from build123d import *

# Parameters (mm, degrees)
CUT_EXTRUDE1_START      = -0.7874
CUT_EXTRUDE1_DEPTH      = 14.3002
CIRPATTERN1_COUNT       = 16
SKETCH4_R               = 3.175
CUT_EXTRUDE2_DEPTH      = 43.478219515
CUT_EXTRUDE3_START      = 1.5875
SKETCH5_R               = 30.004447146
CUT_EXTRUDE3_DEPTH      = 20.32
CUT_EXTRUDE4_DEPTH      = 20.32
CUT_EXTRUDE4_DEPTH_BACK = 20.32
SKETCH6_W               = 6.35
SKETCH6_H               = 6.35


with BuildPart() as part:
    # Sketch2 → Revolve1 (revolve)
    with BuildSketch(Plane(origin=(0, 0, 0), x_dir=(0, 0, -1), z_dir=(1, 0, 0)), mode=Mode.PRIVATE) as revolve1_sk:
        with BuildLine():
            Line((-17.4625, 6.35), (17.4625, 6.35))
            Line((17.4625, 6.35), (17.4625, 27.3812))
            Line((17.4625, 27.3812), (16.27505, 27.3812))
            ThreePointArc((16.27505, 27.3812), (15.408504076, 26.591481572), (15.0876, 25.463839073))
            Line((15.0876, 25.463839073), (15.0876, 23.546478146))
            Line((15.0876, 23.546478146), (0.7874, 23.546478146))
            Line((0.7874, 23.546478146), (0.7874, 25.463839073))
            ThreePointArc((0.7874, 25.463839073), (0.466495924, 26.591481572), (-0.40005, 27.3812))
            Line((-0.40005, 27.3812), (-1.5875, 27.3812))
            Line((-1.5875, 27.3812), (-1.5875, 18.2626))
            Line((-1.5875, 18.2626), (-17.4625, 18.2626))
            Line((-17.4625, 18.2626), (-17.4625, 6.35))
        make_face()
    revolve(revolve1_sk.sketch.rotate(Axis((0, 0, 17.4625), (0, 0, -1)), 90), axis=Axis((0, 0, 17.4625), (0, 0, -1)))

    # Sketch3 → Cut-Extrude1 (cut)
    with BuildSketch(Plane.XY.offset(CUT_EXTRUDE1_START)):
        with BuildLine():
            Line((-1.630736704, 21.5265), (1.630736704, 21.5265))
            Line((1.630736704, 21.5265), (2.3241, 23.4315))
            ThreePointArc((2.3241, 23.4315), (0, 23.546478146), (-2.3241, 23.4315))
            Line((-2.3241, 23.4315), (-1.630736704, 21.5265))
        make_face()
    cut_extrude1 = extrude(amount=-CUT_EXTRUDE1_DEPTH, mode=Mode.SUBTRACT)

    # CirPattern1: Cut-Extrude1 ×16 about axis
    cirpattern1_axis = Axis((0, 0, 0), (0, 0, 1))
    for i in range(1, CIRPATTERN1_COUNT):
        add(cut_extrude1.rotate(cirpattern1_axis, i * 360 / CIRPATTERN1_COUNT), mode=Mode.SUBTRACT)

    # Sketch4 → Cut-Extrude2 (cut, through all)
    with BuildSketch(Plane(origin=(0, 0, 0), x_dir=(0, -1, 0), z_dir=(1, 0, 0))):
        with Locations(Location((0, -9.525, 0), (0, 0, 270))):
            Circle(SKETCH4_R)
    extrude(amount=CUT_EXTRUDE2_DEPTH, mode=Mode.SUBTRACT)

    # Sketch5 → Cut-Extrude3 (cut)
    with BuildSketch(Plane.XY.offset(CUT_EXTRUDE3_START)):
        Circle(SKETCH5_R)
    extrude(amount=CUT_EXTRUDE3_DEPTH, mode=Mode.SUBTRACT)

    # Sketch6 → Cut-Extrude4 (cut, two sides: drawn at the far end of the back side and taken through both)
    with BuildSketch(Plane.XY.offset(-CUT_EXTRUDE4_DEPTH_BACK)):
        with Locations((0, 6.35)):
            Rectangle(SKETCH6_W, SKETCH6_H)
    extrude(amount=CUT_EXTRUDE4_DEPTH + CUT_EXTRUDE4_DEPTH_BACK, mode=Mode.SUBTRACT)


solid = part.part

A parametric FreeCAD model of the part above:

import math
import FreeCAD as App
import Part
import Sketcher
from FreeCAD import Vector
Q = App.Units.Quantity

doc = App.newDocument("Part")
body = doc.addObject("PartDesign::Body", "Body")

# Sketch on YZ plane
sketch1 = body.newObject("Sketcher::SketchObject", "Sketch")
sketch1.AttachmentSupport = (doc.getObject("YZ_Plane"), [""])
sketch1.MapMode = "FlatFace"
sketch1.addGeometry([
    Part.LineSegment(Vector(6.3, 17.5, 0), Vector(6.3, -17.5, 0)),  # 0
    Part.LineSegment(Vector(6.3, -17.5, 0), Vector(27.4, -17.5, 0)),  # 1
    Part.LineSegment(Vector(27.4, -17.5, 0), Vector(27.4, -16.3, 0)),  # 2
    Part.ArcOfCircle(Part.Circle(Vector(25.5, -17.2, 0), Vector(0, 0, 1), 2.1), math.radians(26), math.radians(90)),  # 3
    Part.LineSegment(Vector(25.5, -15.1, 0), Vector(23.5, -15.1, 0)),  # 4
    Part.LineSegment(Vector(23.5, -15.1, 0), Vector(23.5, -0.8, 0)),  # 5
    Part.LineSegment(Vector(23.5, -0.8, 0), Vector(25.5, -0.8, 0)),  # 6
    Part.ArcOfCircle(Part.Circle(Vector(25.5, 1.4, 0), Vector(0, 0, 1), 2.1), math.radians(-90), math.radians(-26)),  # 7
    Part.LineSegment(Vector(27.4, 0.4, 0), Vector(27.4, 1.6, 0)),  # 8
    Part.LineSegment(Vector(27.4, 1.6, 0), Vector(18.3, 1.6, 0)),  # 9
    Part.LineSegment(Vector(18.3, 1.6, 0), Vector(18.3, 17.5, 0)),  # 10
    Part.LineSegment(Vector(18.3, 17.5, 0), Vector(6.3, 17.5, 0)),  # 11
], False)
sketch1.addConstraint([
    Sketcher.Constraint("Coincident", 0, 2, 1, 1),
    Sketcher.Constraint("Coincident", 1, 2, 2, 1),
    Sketcher.Constraint("Coincident", 2, 2, 3, 1),
    Sketcher.Constraint("Tangent", 3, 2, 4, 1),
    Sketcher.Constraint("Coincident", 4, 2, 5, 1),
    Sketcher.Constraint("Coincident", 5, 2, 6, 1),
    Sketcher.Constraint("Tangent", 6, 2, 7, 1),
    Sketcher.Constraint("Coincident", 7, 2, 8, 1),
    Sketcher.Constraint("Coincident", 8, 2, 9, 1),
    Sketcher.Constraint("Coincident", 9, 2, 10, 1),
    Sketcher.Constraint("Coincident", 10, 2, 11, 1),
    Sketcher.Constraint("Coincident", 11, 2, 0, 1),
    Sketcher.Constraint("Vertical", 0),
    Sketcher.Constraint("Horizontal", 1),
    Sketcher.Constraint("Vertical", 2),
    Sketcher.Constraint("Horizontal", 4),
    Sketcher.Constraint("Vertical", 5),
    Sketcher.Constraint("Horizontal", 6),
    Sketcher.Constraint("Vertical", 8),
    Sketcher.Constraint("Horizontal", 9),
    Sketcher.Constraint("Vertical", 10),
    Sketcher.Constraint("Horizontal", 11),
    Sketcher.Constraint("Equal", 3, 7),
    Sketcher.Constraint("Vertical", 3, 3, 7, 3),
    Sketcher.Constraint("Vertical", 2, 2, 7, 2),
    Sketcher.Constraint("Equal", 2, 8),
    Sketcher.Constraint("DistanceX", 1, 1, 1, 2, Q("0.828 in")),
    Sketcher.Constraint("DistanceX", 9, 2, 9, 1, Q("0.359 in")),
    Sketcher.Constraint("DistanceY", 0, 2, 0, 1, Q("1.375 in")),
    Sketcher.Constraint("DistanceY", 5, 1, 5, 2, Q("0.563 in")),
    Sketcher.Constraint("DistanceY", 10, 1, 10, 2, Q("0.625 in")),
    Sketcher.Constraint("DistanceX", -1, 1, 0, 2, Q("0.25 in")),
    Sketcher.Constraint("DistanceY", 0, 2, -1, 1, Q("0.6875 in")),
    Sketcher.Constraint("Radius", 3, Q("2.141695 mm")),
    Sketcher.Constraint("DistanceX", 4, 2, 4, 1, Q("1.917361 mm")),
    Sketcher.Constraint("DistanceY", 2, 1, 2, 2, Q("1.18745 mm")),
])
revolution = body.newObject("PartDesign::Revolution", "Revolution")
revolution.Profile = sketch1
revolution.ReferenceAxis = (sketch1, ["V_Axis"])
revolution.Angle = 360

# Sketch on XY plane
sketch2 = body.newObject("Sketcher::SketchObject", "Sketch001")
sketch2.AttachmentSupport = (doc.getObject("XY_Plane"), [""])
sketch2.MapMode = "FlatFace"
sketch2.AttachmentOffset = App.Placement(Vector(0, 0, -0.031 * 25.4), App.Rotation())
sketch2.addGeometry([
    Part.LineSegment(Vector(-1.6, 21.5, 0), Vector(1.6, 21.5, 0)),
    Part.LineSegment(Vector(1.6, 21.5, 0), Vector(2.3, 23.4, 0)),
    Part.ArcOfCircle(Part.Circle(Vector(0, 0, 0), Vector(0, 0, 1), 23.5), math.radians(84.34), math.radians(95.66)),
    Part.LineSegment(Vector(-2.3, 23.4, 0), Vector(-1.6, 21.5, 0)),
], False)
sketch2.addConstraint([
    Sketcher.Constraint("Coincident", 0, 2, 1, 1),
    Sketcher.Constraint("Coincident", 1, 2, 2, 1),
    Sketcher.Constraint("Coincident", 2, 2, 3, 1),
    Sketcher.Constraint("Coincident", 3, 2, 0, 1),
    Sketcher.Constraint("Horizontal", 0),
    Sketcher.Constraint("Coincident", 2, 3, -1, 1),
    Sketcher.Constraint("Horizontal", 1, 2, 2, 2),
    Sketcher.Constraint("Equal", 1, 3),
    Sketcher.Constraint("Angle", 1, Q("70 deg")),
    Sketcher.Constraint("Radius", 2, Q("23.546478 mm")),
    Sketcher.Constraint("DistanceY", 0, 2, 1, 2, Q("0.075 in")),
    Sketcher.Constraint("DistanceX", 2, 2, 1, 2, Q("0.183 in")),
])
pocket1 = body.newObject("PartDesign::Pocket", "Pocket")
pocket1.Profile = sketch2
pocket1.Length = Q("0.563 in")
doc.recompute()

polarpattern = body.newObject("PartDesign::PolarPattern", "PolarPattern")
polarpattern.Originals = [pocket1]
polarpattern.Axis = (doc.getObject("Z_Axis"), [""])
polarpattern.Angle = 360
polarpattern.Occurrences = 16
body.Tip = polarpattern

# Sketch on YZ plane
sketch3 = body.newObject("Sketcher::SketchObject", "Sketch002")
sketch3.AttachmentSupport = (doc.getObject("YZ_Plane"), [""])
sketch3.MapMode = "FlatFace"
sketch3.addGeometry(Part.Circle(Vector(0, 9.5, 0), Vector(0, 0, 1), 3.2), False)
sketch3.addConstraint([
    Sketcher.Constraint("PointOnObject", 0, 3, -2),
    Sketcher.Constraint("Diameter", 0, Q("0.25 in")),
    Sketcher.Constraint("DistanceY", -1, 1, 0, 3, Q("0.375 in")),
])
pocket2 = body.newObject("PartDesign::Pocket", "Pocket001")
pocket2.Profile = sketch3
pocket2.Type = "ThroughAll"
pocket2.Reversed = True

# Sketch on XY plane
sketch4 = body.newObject("Sketcher::SketchObject", "Sketch003")
sketch4.AttachmentSupport = (doc.getObject("XY_Plane"), [""])
sketch4.MapMode = "FlatFace"
sketch4.AttachmentOffset = App.Placement(Vector(0, 0, 0.0625 * 25.4), App.Rotation())
sketch4.addGeometry(Part.Circle(Vector(0, 0, 0), Vector(0, 0, 1), 30), False)
sketch4.addConstraint([
    Sketcher.Constraint("Coincident", 0, 3, -1, 1),
    Sketcher.Constraint("Diameter", 0, Q("60.008894 mm")),
])
pocket3 = body.newObject("PartDesign::Pocket", "Pocket002")
pocket3.Profile = sketch4
pocket3.Length = Q("0.8 in")
pocket3.Reversed = True

# Sketch on XY plane
sketch5 = body.newObject("Sketcher::SketchObject", "Sketch004")
sketch5.AttachmentSupport = (doc.getObject("XY_Plane"), [""])
sketch5.MapMode = "FlatFace"
sketch5.addGeometry([
    Part.LineSegment(Vector(-3, 10, 0), Vector(-3, 3, 0)),
    Part.LineSegment(Vector(-3, 3, 0), Vector(3, 3, 0)),
    Part.LineSegment(Vector(3, 3, 0), Vector(3, 10, 0)),
    Part.LineSegment(Vector(3, 10, 0), Vector(-3, 10, 0)),
], False)
sketch5.addConstraint([
    Sketcher.Constraint("Coincident", 0, 2, 1, 1),
    Sketcher.Constraint("Coincident", 1, 2, 2, 1),
    Sketcher.Constraint("Coincident", 2, 2, 3, 1),
    Sketcher.Constraint("Coincident", 3, 2, 0, 1),
    Sketcher.Constraint("Vertical", 0),
    Sketcher.Constraint("Horizontal", 1),
    Sketcher.Constraint("Vertical", 2),
    Sketcher.Constraint("Horizontal", 3),
    Sketcher.Constraint("Equal", 3, 0),
    Sketcher.Constraint("DistanceX", 1, 1, 1, 2, Q("0.25 in")),
    Sketcher.Constraint("DistanceX", 0, 2, -1, 1, Q("0.125 in")),
    Sketcher.Constraint("DistanceY", -1, 1, 0, 2, Q("0.125 in")),
])
pocket4 = body.newObject("PartDesign::Pocket", "Pocket003")
pocket4.Profile = sketch5
pocket4.Type = "ThroughAll"
pocket4.Midplane = True

doc.recompute()
